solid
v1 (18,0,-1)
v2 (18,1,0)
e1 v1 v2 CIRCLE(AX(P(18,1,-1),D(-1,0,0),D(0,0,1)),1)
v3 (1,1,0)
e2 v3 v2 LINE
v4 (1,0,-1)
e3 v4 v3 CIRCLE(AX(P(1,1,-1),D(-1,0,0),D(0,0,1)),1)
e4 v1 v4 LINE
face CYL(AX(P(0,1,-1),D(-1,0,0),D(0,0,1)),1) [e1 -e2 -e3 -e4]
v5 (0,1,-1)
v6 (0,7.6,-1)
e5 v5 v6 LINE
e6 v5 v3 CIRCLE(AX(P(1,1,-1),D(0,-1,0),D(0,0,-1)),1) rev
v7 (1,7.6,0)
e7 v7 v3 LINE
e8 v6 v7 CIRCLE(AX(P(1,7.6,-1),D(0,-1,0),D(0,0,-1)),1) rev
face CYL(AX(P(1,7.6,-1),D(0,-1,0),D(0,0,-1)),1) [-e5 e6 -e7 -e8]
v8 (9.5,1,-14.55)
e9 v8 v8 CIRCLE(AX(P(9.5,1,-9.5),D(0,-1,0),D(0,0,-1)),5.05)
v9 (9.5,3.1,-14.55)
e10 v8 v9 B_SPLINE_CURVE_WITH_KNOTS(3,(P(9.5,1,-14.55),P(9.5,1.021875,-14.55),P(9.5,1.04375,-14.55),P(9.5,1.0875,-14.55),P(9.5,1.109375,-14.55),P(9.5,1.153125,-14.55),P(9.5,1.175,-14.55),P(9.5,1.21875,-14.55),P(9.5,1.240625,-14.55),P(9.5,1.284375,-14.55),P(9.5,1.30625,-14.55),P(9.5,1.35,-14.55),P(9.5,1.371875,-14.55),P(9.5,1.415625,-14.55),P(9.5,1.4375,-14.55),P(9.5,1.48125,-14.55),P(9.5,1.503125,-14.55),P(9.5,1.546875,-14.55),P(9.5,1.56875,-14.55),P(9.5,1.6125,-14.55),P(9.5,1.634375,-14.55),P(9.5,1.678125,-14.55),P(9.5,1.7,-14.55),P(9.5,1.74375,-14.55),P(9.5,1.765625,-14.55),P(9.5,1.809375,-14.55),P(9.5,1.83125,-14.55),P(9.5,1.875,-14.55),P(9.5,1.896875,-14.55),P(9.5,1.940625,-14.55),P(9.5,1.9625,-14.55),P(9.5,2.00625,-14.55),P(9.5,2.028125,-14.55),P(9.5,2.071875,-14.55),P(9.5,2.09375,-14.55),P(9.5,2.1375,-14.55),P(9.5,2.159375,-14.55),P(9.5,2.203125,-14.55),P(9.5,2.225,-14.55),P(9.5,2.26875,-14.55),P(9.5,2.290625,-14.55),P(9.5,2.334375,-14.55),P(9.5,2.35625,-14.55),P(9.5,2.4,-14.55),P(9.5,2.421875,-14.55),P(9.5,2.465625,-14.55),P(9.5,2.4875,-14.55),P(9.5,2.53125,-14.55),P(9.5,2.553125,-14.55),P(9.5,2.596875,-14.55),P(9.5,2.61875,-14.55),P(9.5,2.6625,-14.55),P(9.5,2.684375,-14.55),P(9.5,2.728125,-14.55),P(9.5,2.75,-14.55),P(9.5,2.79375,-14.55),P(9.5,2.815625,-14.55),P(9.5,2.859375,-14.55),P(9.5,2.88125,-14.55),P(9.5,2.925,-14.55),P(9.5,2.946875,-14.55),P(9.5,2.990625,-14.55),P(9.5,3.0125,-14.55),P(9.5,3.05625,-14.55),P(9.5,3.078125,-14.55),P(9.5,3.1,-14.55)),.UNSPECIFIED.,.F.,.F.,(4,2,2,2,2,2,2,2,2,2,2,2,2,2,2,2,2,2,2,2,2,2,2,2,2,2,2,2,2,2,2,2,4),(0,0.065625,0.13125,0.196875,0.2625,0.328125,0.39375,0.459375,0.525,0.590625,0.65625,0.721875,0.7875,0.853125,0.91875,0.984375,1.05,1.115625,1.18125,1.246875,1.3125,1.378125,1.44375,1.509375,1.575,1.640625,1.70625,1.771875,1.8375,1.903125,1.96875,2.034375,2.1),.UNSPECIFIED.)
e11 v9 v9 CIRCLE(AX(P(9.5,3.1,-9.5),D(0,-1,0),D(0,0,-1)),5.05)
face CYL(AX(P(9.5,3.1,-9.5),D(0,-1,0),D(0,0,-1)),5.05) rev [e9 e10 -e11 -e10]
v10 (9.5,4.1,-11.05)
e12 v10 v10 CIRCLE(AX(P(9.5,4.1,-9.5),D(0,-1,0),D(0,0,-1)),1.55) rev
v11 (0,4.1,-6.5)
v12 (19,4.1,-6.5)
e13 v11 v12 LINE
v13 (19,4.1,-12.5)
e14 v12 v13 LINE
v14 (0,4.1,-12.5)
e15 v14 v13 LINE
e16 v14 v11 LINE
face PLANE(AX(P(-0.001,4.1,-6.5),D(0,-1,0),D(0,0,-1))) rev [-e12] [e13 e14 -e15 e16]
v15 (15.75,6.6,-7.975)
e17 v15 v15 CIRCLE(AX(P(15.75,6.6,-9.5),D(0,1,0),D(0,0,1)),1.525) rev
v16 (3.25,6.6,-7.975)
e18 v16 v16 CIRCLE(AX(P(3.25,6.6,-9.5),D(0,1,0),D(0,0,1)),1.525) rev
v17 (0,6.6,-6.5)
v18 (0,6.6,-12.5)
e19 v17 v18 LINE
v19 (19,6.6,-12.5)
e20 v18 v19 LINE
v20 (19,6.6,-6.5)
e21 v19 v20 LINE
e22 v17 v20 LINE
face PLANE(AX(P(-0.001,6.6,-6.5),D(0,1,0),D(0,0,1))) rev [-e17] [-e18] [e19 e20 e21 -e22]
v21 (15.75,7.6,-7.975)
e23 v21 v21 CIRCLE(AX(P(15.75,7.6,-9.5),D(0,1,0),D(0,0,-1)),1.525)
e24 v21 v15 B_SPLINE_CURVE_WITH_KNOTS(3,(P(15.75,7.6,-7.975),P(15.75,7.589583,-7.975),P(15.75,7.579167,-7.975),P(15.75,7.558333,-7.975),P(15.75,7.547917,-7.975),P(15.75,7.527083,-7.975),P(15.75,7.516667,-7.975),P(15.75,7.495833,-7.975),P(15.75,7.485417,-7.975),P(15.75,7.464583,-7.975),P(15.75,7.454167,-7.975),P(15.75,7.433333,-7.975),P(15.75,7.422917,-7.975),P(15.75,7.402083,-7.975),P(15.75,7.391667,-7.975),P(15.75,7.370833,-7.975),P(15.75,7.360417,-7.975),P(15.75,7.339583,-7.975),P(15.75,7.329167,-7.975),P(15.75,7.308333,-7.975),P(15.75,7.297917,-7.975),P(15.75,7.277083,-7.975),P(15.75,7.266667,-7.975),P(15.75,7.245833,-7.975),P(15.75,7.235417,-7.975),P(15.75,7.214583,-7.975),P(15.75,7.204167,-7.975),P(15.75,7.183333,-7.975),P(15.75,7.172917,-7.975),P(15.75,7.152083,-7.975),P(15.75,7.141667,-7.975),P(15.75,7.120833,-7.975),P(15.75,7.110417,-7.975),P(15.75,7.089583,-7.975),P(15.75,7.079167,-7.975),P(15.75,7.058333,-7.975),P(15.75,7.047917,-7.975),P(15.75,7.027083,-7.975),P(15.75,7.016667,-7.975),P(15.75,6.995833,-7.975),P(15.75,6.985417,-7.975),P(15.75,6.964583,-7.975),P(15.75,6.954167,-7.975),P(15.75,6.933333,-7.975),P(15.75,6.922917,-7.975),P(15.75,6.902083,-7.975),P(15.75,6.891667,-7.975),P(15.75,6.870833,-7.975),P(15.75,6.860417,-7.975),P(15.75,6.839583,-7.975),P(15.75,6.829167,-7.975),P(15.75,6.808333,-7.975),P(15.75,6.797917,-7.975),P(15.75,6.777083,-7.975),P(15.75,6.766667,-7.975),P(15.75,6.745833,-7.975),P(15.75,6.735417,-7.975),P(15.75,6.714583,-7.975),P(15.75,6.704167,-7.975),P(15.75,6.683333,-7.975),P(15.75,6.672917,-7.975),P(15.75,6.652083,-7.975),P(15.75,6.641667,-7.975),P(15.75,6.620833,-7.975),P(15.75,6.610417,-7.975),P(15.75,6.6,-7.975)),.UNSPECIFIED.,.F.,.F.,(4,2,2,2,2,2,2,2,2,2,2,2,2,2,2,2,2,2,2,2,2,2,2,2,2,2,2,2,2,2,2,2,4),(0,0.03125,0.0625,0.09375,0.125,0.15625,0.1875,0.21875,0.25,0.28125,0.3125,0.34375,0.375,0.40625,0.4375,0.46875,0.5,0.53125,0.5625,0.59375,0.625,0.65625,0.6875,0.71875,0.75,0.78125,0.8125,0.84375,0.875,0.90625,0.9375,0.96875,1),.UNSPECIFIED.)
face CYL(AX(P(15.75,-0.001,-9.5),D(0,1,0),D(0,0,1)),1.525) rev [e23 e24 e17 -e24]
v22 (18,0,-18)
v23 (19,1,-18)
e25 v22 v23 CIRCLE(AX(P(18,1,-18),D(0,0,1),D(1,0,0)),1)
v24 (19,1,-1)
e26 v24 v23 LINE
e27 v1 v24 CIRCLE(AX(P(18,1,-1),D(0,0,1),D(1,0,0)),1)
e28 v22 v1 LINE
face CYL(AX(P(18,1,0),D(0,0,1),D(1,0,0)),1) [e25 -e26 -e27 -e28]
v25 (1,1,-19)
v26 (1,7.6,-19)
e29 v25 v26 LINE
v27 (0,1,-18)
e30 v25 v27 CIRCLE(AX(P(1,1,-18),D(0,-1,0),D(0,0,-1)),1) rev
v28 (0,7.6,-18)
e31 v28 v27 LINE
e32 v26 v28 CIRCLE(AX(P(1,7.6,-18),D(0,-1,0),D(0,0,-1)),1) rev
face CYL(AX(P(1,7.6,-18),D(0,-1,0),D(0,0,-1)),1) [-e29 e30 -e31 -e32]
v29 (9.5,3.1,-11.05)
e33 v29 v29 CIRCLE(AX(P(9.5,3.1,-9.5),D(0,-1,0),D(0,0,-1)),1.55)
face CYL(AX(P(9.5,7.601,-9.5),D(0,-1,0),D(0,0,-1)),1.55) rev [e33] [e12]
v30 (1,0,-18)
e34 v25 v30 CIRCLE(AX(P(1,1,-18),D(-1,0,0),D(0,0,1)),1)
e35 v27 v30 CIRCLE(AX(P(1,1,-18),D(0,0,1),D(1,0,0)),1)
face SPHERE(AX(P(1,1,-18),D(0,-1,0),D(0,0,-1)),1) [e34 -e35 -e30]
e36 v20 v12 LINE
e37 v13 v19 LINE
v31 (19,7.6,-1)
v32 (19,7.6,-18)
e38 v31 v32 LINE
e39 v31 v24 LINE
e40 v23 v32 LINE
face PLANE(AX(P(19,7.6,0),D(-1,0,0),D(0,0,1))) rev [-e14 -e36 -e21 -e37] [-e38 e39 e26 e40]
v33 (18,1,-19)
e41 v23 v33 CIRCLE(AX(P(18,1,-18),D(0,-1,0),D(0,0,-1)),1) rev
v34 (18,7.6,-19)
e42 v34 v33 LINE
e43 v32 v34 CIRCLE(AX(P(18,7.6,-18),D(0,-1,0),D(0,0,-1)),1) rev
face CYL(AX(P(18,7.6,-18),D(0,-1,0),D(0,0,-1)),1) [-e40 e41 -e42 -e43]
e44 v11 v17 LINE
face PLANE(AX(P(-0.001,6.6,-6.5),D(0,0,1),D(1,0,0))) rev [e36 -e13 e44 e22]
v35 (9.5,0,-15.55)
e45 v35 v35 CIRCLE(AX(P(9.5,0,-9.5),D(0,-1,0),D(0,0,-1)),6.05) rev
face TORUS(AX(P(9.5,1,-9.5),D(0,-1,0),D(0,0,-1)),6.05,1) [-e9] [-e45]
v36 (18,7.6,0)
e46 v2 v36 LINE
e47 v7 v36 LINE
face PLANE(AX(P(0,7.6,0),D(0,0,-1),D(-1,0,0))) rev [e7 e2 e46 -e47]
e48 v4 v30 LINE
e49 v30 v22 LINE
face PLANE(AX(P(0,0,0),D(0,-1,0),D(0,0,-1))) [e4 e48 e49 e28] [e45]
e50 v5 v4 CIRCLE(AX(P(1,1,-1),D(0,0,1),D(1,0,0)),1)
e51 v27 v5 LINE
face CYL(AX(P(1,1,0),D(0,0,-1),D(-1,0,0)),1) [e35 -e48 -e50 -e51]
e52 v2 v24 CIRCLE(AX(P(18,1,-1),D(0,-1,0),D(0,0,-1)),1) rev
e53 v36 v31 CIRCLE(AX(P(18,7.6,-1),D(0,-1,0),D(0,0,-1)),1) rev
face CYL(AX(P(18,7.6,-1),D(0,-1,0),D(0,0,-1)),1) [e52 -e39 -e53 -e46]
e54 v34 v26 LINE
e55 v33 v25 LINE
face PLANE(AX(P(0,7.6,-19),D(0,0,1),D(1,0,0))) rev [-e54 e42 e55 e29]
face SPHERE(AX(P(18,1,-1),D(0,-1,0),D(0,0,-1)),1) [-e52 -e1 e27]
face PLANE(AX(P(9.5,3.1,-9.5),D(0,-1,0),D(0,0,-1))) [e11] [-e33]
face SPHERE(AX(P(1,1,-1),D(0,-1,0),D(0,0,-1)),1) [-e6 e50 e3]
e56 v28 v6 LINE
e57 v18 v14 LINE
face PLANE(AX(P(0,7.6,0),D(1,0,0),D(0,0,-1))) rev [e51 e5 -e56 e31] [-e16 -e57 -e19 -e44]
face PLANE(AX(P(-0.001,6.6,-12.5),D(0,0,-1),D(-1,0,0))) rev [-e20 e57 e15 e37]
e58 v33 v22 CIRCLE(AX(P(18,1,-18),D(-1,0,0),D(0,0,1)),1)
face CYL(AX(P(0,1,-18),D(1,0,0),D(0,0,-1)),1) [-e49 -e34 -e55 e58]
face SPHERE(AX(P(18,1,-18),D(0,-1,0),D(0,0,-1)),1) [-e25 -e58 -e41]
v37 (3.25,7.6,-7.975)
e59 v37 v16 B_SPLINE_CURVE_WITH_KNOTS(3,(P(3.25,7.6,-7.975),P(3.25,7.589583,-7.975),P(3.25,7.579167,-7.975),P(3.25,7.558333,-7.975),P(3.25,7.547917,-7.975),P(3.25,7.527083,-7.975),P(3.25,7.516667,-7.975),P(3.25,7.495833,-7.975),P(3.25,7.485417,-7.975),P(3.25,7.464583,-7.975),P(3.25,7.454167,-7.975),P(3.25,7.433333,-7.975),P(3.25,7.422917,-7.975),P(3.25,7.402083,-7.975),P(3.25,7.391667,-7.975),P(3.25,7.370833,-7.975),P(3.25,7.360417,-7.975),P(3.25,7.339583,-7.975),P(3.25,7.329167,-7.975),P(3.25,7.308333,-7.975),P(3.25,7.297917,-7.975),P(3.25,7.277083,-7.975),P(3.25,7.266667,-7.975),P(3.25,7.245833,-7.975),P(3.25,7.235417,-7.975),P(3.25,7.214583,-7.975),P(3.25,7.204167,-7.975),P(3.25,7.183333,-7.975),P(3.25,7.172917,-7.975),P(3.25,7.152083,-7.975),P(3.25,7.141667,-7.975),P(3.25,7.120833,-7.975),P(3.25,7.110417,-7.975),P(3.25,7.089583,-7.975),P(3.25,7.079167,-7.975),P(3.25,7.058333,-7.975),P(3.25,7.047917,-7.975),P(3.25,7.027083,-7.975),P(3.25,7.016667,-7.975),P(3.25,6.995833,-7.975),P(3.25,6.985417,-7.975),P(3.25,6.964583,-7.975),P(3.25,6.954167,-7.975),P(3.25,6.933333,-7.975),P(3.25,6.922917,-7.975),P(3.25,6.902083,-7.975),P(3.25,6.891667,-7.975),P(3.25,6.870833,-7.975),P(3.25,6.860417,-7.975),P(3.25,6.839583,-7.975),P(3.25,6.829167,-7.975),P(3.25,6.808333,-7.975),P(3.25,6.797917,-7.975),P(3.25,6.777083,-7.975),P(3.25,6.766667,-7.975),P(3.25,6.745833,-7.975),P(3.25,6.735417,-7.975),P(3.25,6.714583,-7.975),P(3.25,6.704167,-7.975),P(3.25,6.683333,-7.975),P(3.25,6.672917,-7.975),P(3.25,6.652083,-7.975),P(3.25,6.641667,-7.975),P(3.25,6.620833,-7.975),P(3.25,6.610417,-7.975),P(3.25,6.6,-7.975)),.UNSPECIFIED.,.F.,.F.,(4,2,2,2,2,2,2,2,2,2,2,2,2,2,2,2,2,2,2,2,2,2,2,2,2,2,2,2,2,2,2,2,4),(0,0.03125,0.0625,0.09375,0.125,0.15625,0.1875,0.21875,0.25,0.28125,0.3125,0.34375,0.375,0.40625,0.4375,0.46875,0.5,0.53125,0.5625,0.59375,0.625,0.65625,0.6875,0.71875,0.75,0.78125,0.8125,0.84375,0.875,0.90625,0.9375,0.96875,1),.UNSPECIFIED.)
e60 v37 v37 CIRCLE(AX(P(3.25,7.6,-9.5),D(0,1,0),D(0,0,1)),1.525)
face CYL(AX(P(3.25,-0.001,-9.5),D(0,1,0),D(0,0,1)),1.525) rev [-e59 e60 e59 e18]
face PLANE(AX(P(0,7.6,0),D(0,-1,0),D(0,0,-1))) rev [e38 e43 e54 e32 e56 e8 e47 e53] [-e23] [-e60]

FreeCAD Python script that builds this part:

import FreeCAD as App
import Part
import Sketcher

V = App.Vector


def edges_at(feature, points):
    """Names of the edges that pass closest to the given points."""
    edges = feature.Shape.Edges
    near = lambda p: min(range(len(edges)), key=lambda i: edges[i].distToShape(Part.Vertex(*p))[0])
    return sorted({f"Edge{near(p) + 1}" for p in points})

doc = App.newDocument("Part")
params = doc.addObject("Spreadsheet::Sheet", "Params")
for row, (alias, value) in enumerate([
    ("sketch1_width", "19 mm"),
    ("pad1_length", "7.6 mm"),
    ("sketch2_height", "6 mm"),
    ("sketch2_width", "2.5 mm"),
    ("sketch3_diameter", "3.05 mm"),
    ("sketch4_diameter", "3.05 mm"),
    ("sketch5_diameter", "10.1 mm"),
    ("pocket4_length", "3.1 mm"),
    ("fillet_radius", "1 mm"),
    ("fillet2_radius", "1 mm"),
    ("sketch6_diameter", "3.1 mm"),
], start=1):
    params.set(f"A{row}", alias)
    params.set(f"B{row}", "=" + value)
    params.setAlias(f"B{row}", alias)

body = doc.addObject("PartDesign::Body", "Body")

sketch1 = body.newObject("Sketcher::SketchObject", "Sketch")
sketch1.AttachmentSupport = (doc.getObject("XZ_Plane"), [""])
sketch1.MapMode = "FlatFace"
sketch1.addGeometry([
    Part.LineSegment(V(0, -19, 0), V(0, 0, 0)),
    Part.LineSegment(V(0, 0, 0), V(19, 0, 0)),
    Part.LineSegment(V(19, 0, 0), V(19, -19, 0)),
    Part.LineSegment(V(19, -19, 0), V(0, -19, 0)),
], False)
sketch1.addConstraint([
    Sketcher.Constraint("Coincident", 0, 2, 1, 1),
    Sketcher.Constraint("Coincident", 1, 2, 2, 1),
    Sketcher.Constraint("Coincident", 2, 2, 3, 1),
    Sketcher.Constraint("Coincident", 3, 2, 0, 1),
    Sketcher.Constraint("Vertical", 0),
    Sketcher.Constraint("Horizontal", 1),
    Sketcher.Constraint("Vertical", 2),
    Sketcher.Constraint("Horizontal", 3),
    Sketcher.Constraint("Coincident", 0, 2, -1, 1),
    Sketcher.Constraint("Equal", 3, 0),
    Sketcher.Constraint("DistanceX", 1, 1, 1, 2, 19.0),
])
sketch1.setExpression("Constraints[10]", "Params.sketch1_width")
pad1 = body.newObject("PartDesign::Pad", "Pad")
pad1.Profile = sketch1
pad1.setExpression("Length", "Params.pad1_length")
pad1.Reversed = True

sketch2 = body.newObject("Sketcher::SketchObject", "Sketch001")
sketch2.AttachmentSupport = (doc.getObject("YZ_Plane"), [""])
sketch2.MapMode = "FlatFace"
sketch2.AttachmentOffset = App.Placement(V(0, 0, 19), App.Rotation())
sketch2.addGeometry([
    Part.LineSegment(V(6.6, -6.5, 0), V(4.1, -6.5, 0)),
    Part.LineSegment(V(4.1, -6.5, 0), V(4.1, -12.5, 0)),
    Part.LineSegment(V(4.1, -12.5, 0), V(6.6, -12.5, 0)),
    Part.LineSegment(V(6.6, -12.5, 0), V(6.6, -6.5, 0)),
], False)
sketch2.addConstraint([
    Sketcher.Constraint("Coincident", 0, 2, 1, 1),
    Sketcher.Constraint("Coincident", 1, 2, 2, 1),
    Sketcher.Constraint("Coincident", 2, 2, 3, 1),
    Sketcher.Constraint("Coincident", 3, 2, 0, 1),
    Sketcher.Constraint("Horizontal", 0),
    Sketcher.Constraint("Vertical", 1),
    Sketcher.Constraint("Horizontal", 2),
    Sketcher.Constraint("Vertical", 3),
    Sketcher.Constraint("DistanceY", 1, 2, 1, 1, 6.0),
    Sketcher.Constraint("DistanceX", 0, 2, 0, 1, 2.5),
    Sketcher.Constraint("DistanceX", -1, 1, 0, 2, 4.1),
    Sketcher.Constraint("DistanceY", 0, 2, -1, 1, 6.5),
])
sketch2.setExpression("Constraints[8]", "Params.sketch2_height")
sketch2.setExpression("Constraints[9]", "Params.sketch2_width")
pocket1 = body.newObject("PartDesign::Pocket", "Pocket")
pocket1.Profile = sketch2
pocket1.Type = "UpToFirst"

sketch3 = body.newObject("Sketcher::SketchObject", "Sketch002")
sketch3.AttachmentSupport = (doc.getObject("XZ_Plane"), [""])
sketch3.MapMode = "FlatFace"
sketch3.AttachmentOffset = App.Placement(V(0, 0, -7.6), App.Rotation())
sketch3.addGeometry(Part.Circle(V(3.25, -9.5, 0), V(0, 0, 1), 1.525), False)
sketch3.addConstraint([
    Sketcher.Constraint("Diameter", 0, 3.05),
    Sketcher.Constraint("DistanceY", 0, 3, -1, 1, 9.5),
    Sketcher.Constraint("DistanceX", -1, 1, 0, 3, 3.25),
])
sketch3.setExpression("Constraints[0]", "Params.sketch3_diameter")
pocket2 = body.newObject("PartDesign::Pocket", "Pocket001")
pocket2.Profile = sketch3
pocket2.Type = "UpToFirst"
pocket2.Reversed = True

sketch4 = body.newObject("Sketcher::SketchObject", "Sketch003")
sketch4.AttachmentSupport = (doc.getObject("XZ_Plane"), [""])
sketch4.MapMode = "FlatFace"
sketch4.AttachmentOffset = App.Placement(V(0, 0, -7.6), App.Rotation())
sketch4.addGeometry(Part.Circle(V(15.75, -9.5, 0), V(0, 0, 1), 1.525), False)
sketch4.addConstraint([
    Sketcher.Constraint("Diameter", 0, 3.05),
    Sketcher.Constraint("DistanceY", 0, 3, -1, 1, 9.5),
    Sketcher.Constraint("DistanceX", -1, 1, 0, 3, 15.75),
])
sketch4.setExpression("Constraints[0]", "Params.sketch4_diameter")
pocket3 = body.newObject("PartDesign::Pocket", "Pocket002")
pocket3.Profile = sketch4
pocket3.Type = "UpToFirst"
pocket3.Reversed = True

sketch5 = body.newObject("Sketcher::SketchObject", "Sketch004")
sketch5.AttachmentSupport = (doc.getObject("XZ_Plane"), [""])
sketch5.MapMode = "FlatFace"
sketch5.addGeometry(Part.Circle(V(9.5, -9.5, 0), V(0, 0, 1), 5.05), False)
sketch5.addConstraint([
    Sketcher.Constraint("Diameter", 0, 10.1),
    Sketcher.Constraint("DistanceX", -1, 1, 0, 3, 9.5),
    Sketcher.Constraint("DistanceY", 0, 3, -1, 1, 9.5),
])
sketch5.setExpression("Constraints[0]", "Params.sketch5_diameter")
pocket4 = body.newObject("PartDesign::Pocket", "Pocket003")
pocket4.Profile = sketch5
pocket4.setExpression("Length", "Params.pocket4_length")
doc.recompute()

fillet = body.newObject("PartDesign::Fillet", "Fillet")
fillet.Base = (pocket4, edges_at(pocket4, [
    (0, 3.8, -19),
    (19, 3.8, -19),
    (19, 3.8, 0),
    (0, 3.8, 0),
]))
fillet.setExpression("Radius", "Params.fillet_radius")
doc.recompute()

fillet2 = body.newObject("PartDesign::Fillet", "Fillet001")
fillet2.Base = (fillet, edges_at(fillet, [
    (9.5, 0, -4.45),
    (0, 0, -9.5),
    (9.5, 0, -19),
    (19, 0, -9.5),
    (9.5, 0, 0),
    (18.707, 0, -0.293),
    (0.293, 0, -0.293),
    (18.707, 0, -18.707),
    (0.293, 0, -18.707),
]))
fillet2.setExpression("Radius", "Params.fillet2_radius")

sketch6 = body.newObject("Sketcher::SketchObject", "Sketch005")
sketch6.AttachmentSupport = (doc.getObject("XZ_Plane"), [""])
sketch6.MapMode = "FlatFace"
sketch6.AttachmentOffset = App.Placement(V(0, 0, -3.1), App.Rotation())
sketch6.addGeometry(Part.Circle(V(9.5, -9.5, 0), V(0, 0, 1), 1.55), False)
sketch6.addConstraint([
    Sketcher.Constraint("Diameter", 0, 3.1),
    Sketcher.Constraint("DistanceX", -1, 1, 0, 3, 9.5),
    Sketcher.Constraint("DistanceY", 0, 3, -1, 1, 9.5),
])
sketch6.setExpression("Constraints[0]", "Params.sketch6_diameter")
pocket5 = body.newObject("PartDesign::Pocket", "Pocket004")
pocket5.Profile = sketch6
pocket5.Type = "UpToFirst"

doc.recompute()
